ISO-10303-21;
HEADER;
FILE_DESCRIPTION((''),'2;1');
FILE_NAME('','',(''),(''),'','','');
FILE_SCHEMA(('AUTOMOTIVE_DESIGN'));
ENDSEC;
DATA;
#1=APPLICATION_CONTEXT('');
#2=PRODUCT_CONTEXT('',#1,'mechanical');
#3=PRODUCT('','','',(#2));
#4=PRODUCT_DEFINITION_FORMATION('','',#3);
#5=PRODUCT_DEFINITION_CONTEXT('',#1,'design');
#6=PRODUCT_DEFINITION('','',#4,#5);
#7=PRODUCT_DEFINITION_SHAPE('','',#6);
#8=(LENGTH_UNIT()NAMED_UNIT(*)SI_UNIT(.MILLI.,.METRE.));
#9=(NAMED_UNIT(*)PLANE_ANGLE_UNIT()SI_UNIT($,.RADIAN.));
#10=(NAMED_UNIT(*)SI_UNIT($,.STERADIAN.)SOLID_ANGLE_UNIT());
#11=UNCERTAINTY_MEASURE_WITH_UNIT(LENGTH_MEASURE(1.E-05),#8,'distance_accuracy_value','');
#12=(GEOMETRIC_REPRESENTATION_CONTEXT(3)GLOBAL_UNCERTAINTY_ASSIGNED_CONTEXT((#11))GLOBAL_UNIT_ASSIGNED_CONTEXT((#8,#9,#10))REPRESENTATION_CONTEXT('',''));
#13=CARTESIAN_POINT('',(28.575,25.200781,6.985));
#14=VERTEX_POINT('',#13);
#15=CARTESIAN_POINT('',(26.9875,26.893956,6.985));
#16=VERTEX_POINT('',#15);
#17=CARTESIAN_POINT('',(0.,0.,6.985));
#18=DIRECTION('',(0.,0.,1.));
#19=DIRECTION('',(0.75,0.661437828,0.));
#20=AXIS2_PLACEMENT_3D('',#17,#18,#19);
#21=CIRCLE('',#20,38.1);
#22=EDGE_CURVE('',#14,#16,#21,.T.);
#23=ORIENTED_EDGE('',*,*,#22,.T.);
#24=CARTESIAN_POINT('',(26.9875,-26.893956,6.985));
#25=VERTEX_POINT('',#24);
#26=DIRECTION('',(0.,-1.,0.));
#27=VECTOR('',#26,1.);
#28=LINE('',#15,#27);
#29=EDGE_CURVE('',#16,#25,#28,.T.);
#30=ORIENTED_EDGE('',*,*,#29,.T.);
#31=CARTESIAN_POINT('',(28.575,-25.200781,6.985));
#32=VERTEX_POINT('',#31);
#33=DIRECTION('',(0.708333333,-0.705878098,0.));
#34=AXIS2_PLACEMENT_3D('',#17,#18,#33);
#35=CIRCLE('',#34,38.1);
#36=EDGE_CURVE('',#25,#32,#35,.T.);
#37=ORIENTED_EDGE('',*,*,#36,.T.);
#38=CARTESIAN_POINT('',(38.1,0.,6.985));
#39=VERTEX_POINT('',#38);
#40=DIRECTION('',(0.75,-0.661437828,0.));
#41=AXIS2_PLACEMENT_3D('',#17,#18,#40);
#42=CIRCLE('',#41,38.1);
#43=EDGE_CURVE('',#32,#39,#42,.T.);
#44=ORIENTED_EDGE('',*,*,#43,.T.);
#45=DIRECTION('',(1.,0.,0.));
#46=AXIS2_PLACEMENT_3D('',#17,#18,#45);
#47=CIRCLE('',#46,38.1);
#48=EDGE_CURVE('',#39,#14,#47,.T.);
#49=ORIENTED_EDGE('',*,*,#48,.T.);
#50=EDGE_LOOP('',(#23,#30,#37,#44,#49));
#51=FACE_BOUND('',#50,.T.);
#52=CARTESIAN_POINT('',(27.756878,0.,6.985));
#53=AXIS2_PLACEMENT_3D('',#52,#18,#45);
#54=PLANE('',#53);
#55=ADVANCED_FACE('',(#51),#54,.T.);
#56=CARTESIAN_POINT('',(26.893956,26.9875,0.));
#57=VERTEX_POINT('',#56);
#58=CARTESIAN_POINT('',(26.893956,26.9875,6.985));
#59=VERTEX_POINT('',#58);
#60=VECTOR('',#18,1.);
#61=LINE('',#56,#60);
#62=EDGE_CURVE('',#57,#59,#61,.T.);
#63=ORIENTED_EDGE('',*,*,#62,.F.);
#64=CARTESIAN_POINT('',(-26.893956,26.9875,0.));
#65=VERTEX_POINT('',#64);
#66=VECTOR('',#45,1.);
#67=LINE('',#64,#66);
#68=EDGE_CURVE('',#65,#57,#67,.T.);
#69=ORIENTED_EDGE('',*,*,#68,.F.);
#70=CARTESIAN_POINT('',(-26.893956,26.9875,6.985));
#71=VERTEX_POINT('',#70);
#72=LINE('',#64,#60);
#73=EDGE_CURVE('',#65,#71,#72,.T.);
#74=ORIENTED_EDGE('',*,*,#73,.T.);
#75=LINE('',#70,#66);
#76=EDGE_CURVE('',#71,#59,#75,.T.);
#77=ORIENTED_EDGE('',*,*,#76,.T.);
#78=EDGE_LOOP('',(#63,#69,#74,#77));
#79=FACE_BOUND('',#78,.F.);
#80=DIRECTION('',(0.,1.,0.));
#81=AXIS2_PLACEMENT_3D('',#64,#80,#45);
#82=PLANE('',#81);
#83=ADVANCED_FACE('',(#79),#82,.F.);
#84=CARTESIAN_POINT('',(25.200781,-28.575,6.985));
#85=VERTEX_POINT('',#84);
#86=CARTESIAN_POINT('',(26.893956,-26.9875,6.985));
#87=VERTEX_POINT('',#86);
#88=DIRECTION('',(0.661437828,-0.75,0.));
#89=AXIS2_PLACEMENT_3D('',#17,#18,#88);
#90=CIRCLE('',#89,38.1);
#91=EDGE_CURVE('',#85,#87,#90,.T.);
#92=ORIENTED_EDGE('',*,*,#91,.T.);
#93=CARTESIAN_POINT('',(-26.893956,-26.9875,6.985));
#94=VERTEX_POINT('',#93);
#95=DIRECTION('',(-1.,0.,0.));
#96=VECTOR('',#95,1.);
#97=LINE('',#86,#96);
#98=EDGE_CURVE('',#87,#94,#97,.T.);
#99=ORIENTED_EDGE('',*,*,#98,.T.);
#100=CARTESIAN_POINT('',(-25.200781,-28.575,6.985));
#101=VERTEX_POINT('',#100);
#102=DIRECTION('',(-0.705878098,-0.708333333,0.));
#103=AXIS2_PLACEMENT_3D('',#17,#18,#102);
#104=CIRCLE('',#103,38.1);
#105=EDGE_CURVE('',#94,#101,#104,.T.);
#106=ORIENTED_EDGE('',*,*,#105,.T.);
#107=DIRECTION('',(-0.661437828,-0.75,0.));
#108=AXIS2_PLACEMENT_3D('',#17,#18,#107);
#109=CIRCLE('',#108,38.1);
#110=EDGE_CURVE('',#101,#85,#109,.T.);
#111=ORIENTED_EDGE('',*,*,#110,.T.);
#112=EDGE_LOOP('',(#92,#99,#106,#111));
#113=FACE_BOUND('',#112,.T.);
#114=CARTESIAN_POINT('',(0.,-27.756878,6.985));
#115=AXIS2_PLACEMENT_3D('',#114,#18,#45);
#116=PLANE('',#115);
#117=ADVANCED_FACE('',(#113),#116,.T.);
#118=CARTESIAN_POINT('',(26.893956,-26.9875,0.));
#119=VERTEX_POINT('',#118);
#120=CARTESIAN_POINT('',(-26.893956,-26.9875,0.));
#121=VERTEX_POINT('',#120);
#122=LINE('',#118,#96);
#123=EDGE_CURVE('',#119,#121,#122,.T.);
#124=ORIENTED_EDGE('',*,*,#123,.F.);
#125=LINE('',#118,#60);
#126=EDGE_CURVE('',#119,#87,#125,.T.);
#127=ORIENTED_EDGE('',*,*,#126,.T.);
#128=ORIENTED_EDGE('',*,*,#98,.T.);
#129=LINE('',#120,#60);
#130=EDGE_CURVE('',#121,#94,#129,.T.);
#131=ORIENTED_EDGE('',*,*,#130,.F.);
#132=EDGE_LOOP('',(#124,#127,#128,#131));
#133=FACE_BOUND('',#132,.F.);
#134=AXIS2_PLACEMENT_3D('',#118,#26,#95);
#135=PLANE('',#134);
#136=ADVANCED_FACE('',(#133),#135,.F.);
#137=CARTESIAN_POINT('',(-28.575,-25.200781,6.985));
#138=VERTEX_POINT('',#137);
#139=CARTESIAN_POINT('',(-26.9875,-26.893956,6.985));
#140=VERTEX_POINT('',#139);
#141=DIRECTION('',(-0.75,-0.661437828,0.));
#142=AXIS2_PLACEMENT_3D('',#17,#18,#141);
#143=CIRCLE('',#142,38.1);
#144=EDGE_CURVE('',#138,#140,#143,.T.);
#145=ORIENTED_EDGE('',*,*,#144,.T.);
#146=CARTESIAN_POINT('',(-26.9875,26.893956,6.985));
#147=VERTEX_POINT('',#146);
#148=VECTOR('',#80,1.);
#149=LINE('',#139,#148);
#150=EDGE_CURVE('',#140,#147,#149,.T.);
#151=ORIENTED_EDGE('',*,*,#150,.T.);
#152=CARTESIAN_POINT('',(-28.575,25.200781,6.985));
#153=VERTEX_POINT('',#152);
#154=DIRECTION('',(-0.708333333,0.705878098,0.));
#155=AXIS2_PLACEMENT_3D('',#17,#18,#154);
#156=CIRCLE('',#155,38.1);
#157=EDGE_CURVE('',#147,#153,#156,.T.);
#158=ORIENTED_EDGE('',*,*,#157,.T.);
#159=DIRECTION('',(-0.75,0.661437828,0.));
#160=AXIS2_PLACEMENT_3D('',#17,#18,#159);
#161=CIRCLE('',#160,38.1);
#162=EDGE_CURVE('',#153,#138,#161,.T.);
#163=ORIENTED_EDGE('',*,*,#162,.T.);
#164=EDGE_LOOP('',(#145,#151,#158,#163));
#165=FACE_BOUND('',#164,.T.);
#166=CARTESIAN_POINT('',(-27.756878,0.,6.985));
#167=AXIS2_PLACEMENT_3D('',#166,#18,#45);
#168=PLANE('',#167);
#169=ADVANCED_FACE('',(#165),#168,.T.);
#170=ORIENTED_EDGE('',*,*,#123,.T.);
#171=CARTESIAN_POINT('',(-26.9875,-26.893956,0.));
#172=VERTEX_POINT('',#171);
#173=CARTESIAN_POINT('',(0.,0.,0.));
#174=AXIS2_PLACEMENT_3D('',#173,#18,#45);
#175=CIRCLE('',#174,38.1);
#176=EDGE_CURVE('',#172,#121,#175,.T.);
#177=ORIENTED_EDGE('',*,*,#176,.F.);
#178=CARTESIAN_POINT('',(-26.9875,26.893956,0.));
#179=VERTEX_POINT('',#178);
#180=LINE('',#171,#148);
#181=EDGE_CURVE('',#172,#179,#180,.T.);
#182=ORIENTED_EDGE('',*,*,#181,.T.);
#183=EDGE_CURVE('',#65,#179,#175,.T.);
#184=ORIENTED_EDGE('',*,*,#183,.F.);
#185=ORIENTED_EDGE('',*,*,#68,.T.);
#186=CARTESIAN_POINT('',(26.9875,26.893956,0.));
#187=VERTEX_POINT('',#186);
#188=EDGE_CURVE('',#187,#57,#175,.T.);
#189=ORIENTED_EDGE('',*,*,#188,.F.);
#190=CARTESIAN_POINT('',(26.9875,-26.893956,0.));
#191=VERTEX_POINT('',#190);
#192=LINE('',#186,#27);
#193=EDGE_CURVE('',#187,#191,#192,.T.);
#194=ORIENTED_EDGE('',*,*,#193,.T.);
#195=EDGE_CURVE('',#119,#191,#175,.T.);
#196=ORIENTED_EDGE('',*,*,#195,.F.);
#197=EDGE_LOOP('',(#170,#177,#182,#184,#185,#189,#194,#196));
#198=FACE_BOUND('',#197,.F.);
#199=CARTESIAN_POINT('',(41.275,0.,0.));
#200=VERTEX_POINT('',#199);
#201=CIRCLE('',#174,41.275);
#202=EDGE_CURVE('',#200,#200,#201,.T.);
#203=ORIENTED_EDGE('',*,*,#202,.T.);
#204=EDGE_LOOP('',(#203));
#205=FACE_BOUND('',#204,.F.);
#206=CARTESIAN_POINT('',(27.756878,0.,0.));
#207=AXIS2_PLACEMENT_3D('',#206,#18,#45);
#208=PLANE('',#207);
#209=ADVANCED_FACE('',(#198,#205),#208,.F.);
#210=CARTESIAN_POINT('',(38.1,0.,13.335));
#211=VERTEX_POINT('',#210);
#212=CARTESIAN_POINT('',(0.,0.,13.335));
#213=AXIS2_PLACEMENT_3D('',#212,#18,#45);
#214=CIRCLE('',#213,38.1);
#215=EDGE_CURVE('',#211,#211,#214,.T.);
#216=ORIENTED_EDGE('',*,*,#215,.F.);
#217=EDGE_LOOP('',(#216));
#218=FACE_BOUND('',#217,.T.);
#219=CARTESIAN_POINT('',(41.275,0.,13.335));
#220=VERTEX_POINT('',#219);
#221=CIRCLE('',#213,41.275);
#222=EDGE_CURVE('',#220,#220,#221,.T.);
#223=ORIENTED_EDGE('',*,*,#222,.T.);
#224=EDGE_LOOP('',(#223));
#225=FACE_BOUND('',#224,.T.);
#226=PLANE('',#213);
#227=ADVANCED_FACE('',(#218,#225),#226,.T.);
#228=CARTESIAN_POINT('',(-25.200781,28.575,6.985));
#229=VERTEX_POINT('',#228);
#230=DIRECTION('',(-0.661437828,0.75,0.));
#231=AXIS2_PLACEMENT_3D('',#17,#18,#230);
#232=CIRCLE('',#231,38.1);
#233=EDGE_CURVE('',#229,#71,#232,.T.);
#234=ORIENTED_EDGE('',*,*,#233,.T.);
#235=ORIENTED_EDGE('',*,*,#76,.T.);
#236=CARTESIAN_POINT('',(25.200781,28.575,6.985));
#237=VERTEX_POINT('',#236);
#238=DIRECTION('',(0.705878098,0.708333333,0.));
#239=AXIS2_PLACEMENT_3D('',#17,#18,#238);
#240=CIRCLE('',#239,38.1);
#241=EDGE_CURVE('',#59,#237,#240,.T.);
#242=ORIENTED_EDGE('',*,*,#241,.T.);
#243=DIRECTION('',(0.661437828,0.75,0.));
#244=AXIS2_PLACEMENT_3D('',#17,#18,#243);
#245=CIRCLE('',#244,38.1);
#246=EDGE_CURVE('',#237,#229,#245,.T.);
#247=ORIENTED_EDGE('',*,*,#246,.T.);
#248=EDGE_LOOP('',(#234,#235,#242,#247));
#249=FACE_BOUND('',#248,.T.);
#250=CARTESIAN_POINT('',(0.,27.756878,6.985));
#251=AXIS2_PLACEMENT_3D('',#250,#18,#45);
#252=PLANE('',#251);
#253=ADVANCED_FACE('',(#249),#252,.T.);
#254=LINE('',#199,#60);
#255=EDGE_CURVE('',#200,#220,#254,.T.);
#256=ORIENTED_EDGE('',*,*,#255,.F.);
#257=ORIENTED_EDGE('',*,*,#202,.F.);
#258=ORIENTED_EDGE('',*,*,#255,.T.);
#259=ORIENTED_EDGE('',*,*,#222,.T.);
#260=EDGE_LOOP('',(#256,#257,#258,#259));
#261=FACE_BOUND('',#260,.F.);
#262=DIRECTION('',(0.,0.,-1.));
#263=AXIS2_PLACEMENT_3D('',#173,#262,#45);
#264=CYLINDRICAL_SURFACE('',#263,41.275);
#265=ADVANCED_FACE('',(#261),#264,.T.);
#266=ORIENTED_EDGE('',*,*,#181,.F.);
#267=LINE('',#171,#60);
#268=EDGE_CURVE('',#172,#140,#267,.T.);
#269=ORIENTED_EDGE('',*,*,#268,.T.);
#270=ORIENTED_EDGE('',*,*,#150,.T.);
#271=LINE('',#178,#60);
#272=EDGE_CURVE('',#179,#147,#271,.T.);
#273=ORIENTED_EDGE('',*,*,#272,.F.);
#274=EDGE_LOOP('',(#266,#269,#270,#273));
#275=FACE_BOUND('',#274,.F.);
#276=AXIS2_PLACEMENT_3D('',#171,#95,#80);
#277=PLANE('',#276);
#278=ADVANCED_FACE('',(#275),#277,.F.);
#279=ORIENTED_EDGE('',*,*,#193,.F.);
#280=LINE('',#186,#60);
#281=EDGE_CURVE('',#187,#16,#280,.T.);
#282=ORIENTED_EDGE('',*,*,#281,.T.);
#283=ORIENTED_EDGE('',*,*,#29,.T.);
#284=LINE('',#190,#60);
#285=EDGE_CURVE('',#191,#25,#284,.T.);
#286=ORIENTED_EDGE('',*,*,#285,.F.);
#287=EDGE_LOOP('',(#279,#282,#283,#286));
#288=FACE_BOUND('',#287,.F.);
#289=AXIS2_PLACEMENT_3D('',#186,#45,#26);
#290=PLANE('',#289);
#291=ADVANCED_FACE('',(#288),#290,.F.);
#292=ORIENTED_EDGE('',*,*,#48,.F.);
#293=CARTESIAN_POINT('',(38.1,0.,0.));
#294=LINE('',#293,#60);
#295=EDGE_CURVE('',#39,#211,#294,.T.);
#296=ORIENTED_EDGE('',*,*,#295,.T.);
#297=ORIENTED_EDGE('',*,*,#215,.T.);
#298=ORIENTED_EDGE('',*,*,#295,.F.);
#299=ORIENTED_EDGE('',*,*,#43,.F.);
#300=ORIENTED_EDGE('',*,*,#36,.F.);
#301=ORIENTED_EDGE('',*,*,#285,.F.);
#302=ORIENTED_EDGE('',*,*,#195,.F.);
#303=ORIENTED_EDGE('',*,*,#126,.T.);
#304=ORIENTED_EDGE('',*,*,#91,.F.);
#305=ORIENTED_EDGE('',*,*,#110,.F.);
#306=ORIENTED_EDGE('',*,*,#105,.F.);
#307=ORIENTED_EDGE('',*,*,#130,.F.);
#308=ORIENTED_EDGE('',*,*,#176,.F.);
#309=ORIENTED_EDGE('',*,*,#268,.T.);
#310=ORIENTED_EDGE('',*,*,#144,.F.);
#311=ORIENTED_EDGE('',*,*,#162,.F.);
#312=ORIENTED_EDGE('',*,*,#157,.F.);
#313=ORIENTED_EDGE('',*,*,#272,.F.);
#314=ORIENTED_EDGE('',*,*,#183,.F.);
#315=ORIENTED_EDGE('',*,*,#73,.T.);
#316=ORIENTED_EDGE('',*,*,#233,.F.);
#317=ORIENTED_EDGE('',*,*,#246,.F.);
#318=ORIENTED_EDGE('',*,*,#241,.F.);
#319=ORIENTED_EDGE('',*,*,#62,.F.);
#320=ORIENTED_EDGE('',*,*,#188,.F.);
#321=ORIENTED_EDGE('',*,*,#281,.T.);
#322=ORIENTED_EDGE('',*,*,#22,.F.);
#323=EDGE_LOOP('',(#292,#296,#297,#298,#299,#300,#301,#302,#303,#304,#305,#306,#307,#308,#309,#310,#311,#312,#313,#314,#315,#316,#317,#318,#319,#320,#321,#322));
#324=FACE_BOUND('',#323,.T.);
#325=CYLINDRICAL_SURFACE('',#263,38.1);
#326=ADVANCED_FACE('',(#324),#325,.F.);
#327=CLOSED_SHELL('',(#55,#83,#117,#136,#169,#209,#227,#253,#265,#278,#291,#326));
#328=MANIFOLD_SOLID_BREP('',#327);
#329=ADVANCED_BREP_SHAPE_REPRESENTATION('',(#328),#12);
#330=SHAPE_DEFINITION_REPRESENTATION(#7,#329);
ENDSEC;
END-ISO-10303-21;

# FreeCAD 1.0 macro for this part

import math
import FreeCAD as App
import Part
import Sketcher

V = App.Vector
Q = App.Units.Quantity

doc = App.newDocument("Part")
body = doc.addObject("PartDesign::Body", "Body")

# Sketch on XY plane
sketch1 = body.newObject("Sketcher::SketchObject", "Sketch")
sketch1.AttachmentSupport = (doc.getObject("XY_Plane"), [""])
sketch1.MapMode = "FlatFace"
sketch1.addGeometry([
    Part.Circle(V(0, 0, 0), V(0, 0, 1), 41),
    Part.Circle(V(0, 0, 0), V(0, 0, 1), 38),
], False)
sketch1.addConstraint([
    Sketcher.Constraint("Coincident", 0, 3, -1, 1),
    Sketcher.Constraint("Coincident", 1, 3, -1, 1),
    Sketcher.Constraint("Diameter", 1, Q("3 in")),
    Sketcher.Constraint("Diameter", 0, Q("3.25 in")),
])
pad1 = body.newObject("PartDesign::Pad", "Pad")
pad1.Profile = sketch1
pad1.Length = Q("0.525 in")

# Sketch on XY plane
sketch2 = body.newObject("Sketcher::SketchObject", "Sketch001")
sketch2.AttachmentSupport = (doc.getObject("XY_Plane"), [""])
sketch2.MapMode = "FlatFace"
sketch2.addGeometry([
    Part.ArcOfCircle(Part.Circle(V(0, 0, 0), V(0, 0, 1), 38.1), math.radians(135.1), math.radians(138.59)),  # 0
    Part.ArcOfCircle(Part.Circle(V(0, 0, 0), V(0, 0, 1), 38.1), math.radians(139), math.radians(221)),  # 1
    Part.ArcOfCircle(Part.Circle(V(0, 0, 0), V(0, 0, 1), 38.1), math.radians(-138.59), math.radians(-135.1)),  # 2
    Part.LineSegment(V(-27, -26.9, 0), V(-27, 26.9, 0)),  # 3
    Part.ArcOfCircle(Part.Circle(V(0, 0, 0), V(0, 0, 1), 38.1), math.radians(45.1), math.radians(48.59)),  # 4
    Part.ArcOfCircle(Part.Circle(V(0, 0, 0), V(0, 0, 1), 38.1), math.radians(49), math.radians(131)),  # 5
    Part.ArcOfCircle(Part.Circle(V(0, 0, 0), V(0, 0, 1), 38.1), math.radians(131.41), math.radians(134.9)),  # 6
    Part.LineSegment(V(-26.9, 27, 0), V(26.9, 27, 0)),  # 7
    Part.ArcOfCircle(Part.Circle(V(0, 0, 0), V(0, 0, 1), 38.1), math.radians(41.41), math.radians(44.9)),  # 8
    Part.LineSegment(V(27, 26.9, 0), V(27, -26.9, 0)),  # 9
    Part.ArcOfCircle(Part.Circle(V(0, 0, 0), V(0, 0, 1), 38.1), math.radians(-44.9), math.radians(-41.41)),  # 10
    Part.ArcOfCircle(Part.Circle(V(0, 0, 0), V(0, 0, 1), 38.1), math.radians(-41), math.radians(0)),  # 11
    Part.ArcOfCircle(Part.Circle(V(0, 0, 0), V(0, 0, 1), 38.1), math.radians(0), math.radians(41)),  # 12
    Part.ArcOfCircle(Part.Circle(V(0, 0, 0), V(0, 0, 1), 38.1), math.radians(-48.59), math.radians(-45.1)),  # 13
    Part.LineSegment(V(26.9, -27, 0), V(-26.9, -27, 0)),  # 14
    Part.ArcOfCircle(Part.Circle(V(0, 0, 0), V(0, 0, 1), 38.1), math.radians(-134.9), math.radians(-131.41)),  # 15
    Part.ArcOfCircle(Part.Circle(V(0, 0, 0), V(0, 0, 1), 38.1), math.radians(-131), math.radians(-49)),  # 16
], False)
sketch2.addConstraint([
    Sketcher.Constraint("Tangent", 0, 2, 1, 1),
    Sketcher.Constraint("Tangent", 1, 2, 2, 1),
    Sketcher.Constraint("Coincident", 2, 2, 3, 1),
    Sketcher.Constraint("Coincident", 3, 2, 0, 1),
    Sketcher.Constraint("Tangent", 4, 2, 5, 1),
    Sketcher.Constraint("Tangent", 5, 2, 6, 1),
    Sketcher.Constraint("Coincident", 6, 2, 7, 1),
    Sketcher.Constraint("Coincident", 7, 2, 4, 1),
    Sketcher.Constraint("Coincident", 8, 2, 9, 1),
    Sketcher.Constraint("Coincident", 9, 2, 10, 1),
    Sketcher.Constraint("Tangent", 10, 2, 11, 1),
    Sketcher.Constraint("Tangent", 11, 2, 12, 1),
    Sketcher.Constraint("Tangent", 12, 2, 8, 1),
    Sketcher.Constraint("Coincident", 13, 2, 14, 1),
    Sketcher.Constraint("Coincident", 14, 2, 15, 1),
    Sketcher.Constraint("Tangent", 15, 2, 16, 1),
    Sketcher.Constraint("Tangent", 16, 2, 13, 1),
    Sketcher.Constraint("Vertical", 3),
    Sketcher.Constraint("Horizontal", 7),
    Sketcher.Constraint("Vertical", 9),
    Sketcher.Constraint("Horizontal", 14),
    Sketcher.Constraint("Coincident", 0, 3, -1, 1),
    Sketcher.Constraint("Coincident", 2, 3, -1, 1),
    Sketcher.Constraint("Coincident", 4, 3, -1, 1),
    Sketcher.Constraint("Coincident", 6, 3, -1, 1),
    Sketcher.Constraint("Coincident", 8, 3, -1, 1),
    Sketcher.Constraint("Coincident", 10, 3, -1, 1),
    Sketcher.Constraint("Coincident", 13, 3, -1, 1),
    Sketcher.Constraint("Coincident", 15, 3, -1, 1),
    Sketcher.Constraint("Equal", 2, 4),
    Sketcher.Constraint("Equal", 6, 8),
    Sketcher.Constraint("Equal", 8, 10),
    Sketcher.Constraint("Equal", 12, 13),
    Sketcher.Constraint("PointOnObject", 11, 2, -1),
    Sketcher.Constraint("Horizontal", 4, 2, 5, 2),
    Sketcher.Constraint("Horizontal", 3, 2, 8, 2),
    Sketcher.Constraint("Horizontal", 1, 2, 10, 2),
    Sketcher.Constraint("Horizontal", 0, 2, 12, 2),
    Sketcher.Constraint("Horizontal", 15, 2, 16, 2),
    Sketcher.Constraint("Vertical", 0, 2, 1, 2),
    Sketcher.Constraint("Vertical", 7, 2, 13, 2),
    Sketcher.Constraint("Vertical", 5, 2, 15, 2),
    Sketcher.Constraint("Equal", 14, 3),
    Sketcher.Constraint("Radius", 0, Q("1.5 in")),
    Sketcher.Constraint("DistanceX", 0, 2, -1, 1, Q("1.125 in")),
    Sketcher.Constraint("DistanceX", 2, 2, -1, 1, Q("1.0625 in")),
    Sketcher.Constraint("DistanceY", -1, 1, 4, 2, Q("1.125 in")),
])
pad2 = body.newObject("PartDesign::Pad", "Pad001")
pad2.Profile = sketch2
pad2.Length = Q("0.275 in")

doc.recompute()
